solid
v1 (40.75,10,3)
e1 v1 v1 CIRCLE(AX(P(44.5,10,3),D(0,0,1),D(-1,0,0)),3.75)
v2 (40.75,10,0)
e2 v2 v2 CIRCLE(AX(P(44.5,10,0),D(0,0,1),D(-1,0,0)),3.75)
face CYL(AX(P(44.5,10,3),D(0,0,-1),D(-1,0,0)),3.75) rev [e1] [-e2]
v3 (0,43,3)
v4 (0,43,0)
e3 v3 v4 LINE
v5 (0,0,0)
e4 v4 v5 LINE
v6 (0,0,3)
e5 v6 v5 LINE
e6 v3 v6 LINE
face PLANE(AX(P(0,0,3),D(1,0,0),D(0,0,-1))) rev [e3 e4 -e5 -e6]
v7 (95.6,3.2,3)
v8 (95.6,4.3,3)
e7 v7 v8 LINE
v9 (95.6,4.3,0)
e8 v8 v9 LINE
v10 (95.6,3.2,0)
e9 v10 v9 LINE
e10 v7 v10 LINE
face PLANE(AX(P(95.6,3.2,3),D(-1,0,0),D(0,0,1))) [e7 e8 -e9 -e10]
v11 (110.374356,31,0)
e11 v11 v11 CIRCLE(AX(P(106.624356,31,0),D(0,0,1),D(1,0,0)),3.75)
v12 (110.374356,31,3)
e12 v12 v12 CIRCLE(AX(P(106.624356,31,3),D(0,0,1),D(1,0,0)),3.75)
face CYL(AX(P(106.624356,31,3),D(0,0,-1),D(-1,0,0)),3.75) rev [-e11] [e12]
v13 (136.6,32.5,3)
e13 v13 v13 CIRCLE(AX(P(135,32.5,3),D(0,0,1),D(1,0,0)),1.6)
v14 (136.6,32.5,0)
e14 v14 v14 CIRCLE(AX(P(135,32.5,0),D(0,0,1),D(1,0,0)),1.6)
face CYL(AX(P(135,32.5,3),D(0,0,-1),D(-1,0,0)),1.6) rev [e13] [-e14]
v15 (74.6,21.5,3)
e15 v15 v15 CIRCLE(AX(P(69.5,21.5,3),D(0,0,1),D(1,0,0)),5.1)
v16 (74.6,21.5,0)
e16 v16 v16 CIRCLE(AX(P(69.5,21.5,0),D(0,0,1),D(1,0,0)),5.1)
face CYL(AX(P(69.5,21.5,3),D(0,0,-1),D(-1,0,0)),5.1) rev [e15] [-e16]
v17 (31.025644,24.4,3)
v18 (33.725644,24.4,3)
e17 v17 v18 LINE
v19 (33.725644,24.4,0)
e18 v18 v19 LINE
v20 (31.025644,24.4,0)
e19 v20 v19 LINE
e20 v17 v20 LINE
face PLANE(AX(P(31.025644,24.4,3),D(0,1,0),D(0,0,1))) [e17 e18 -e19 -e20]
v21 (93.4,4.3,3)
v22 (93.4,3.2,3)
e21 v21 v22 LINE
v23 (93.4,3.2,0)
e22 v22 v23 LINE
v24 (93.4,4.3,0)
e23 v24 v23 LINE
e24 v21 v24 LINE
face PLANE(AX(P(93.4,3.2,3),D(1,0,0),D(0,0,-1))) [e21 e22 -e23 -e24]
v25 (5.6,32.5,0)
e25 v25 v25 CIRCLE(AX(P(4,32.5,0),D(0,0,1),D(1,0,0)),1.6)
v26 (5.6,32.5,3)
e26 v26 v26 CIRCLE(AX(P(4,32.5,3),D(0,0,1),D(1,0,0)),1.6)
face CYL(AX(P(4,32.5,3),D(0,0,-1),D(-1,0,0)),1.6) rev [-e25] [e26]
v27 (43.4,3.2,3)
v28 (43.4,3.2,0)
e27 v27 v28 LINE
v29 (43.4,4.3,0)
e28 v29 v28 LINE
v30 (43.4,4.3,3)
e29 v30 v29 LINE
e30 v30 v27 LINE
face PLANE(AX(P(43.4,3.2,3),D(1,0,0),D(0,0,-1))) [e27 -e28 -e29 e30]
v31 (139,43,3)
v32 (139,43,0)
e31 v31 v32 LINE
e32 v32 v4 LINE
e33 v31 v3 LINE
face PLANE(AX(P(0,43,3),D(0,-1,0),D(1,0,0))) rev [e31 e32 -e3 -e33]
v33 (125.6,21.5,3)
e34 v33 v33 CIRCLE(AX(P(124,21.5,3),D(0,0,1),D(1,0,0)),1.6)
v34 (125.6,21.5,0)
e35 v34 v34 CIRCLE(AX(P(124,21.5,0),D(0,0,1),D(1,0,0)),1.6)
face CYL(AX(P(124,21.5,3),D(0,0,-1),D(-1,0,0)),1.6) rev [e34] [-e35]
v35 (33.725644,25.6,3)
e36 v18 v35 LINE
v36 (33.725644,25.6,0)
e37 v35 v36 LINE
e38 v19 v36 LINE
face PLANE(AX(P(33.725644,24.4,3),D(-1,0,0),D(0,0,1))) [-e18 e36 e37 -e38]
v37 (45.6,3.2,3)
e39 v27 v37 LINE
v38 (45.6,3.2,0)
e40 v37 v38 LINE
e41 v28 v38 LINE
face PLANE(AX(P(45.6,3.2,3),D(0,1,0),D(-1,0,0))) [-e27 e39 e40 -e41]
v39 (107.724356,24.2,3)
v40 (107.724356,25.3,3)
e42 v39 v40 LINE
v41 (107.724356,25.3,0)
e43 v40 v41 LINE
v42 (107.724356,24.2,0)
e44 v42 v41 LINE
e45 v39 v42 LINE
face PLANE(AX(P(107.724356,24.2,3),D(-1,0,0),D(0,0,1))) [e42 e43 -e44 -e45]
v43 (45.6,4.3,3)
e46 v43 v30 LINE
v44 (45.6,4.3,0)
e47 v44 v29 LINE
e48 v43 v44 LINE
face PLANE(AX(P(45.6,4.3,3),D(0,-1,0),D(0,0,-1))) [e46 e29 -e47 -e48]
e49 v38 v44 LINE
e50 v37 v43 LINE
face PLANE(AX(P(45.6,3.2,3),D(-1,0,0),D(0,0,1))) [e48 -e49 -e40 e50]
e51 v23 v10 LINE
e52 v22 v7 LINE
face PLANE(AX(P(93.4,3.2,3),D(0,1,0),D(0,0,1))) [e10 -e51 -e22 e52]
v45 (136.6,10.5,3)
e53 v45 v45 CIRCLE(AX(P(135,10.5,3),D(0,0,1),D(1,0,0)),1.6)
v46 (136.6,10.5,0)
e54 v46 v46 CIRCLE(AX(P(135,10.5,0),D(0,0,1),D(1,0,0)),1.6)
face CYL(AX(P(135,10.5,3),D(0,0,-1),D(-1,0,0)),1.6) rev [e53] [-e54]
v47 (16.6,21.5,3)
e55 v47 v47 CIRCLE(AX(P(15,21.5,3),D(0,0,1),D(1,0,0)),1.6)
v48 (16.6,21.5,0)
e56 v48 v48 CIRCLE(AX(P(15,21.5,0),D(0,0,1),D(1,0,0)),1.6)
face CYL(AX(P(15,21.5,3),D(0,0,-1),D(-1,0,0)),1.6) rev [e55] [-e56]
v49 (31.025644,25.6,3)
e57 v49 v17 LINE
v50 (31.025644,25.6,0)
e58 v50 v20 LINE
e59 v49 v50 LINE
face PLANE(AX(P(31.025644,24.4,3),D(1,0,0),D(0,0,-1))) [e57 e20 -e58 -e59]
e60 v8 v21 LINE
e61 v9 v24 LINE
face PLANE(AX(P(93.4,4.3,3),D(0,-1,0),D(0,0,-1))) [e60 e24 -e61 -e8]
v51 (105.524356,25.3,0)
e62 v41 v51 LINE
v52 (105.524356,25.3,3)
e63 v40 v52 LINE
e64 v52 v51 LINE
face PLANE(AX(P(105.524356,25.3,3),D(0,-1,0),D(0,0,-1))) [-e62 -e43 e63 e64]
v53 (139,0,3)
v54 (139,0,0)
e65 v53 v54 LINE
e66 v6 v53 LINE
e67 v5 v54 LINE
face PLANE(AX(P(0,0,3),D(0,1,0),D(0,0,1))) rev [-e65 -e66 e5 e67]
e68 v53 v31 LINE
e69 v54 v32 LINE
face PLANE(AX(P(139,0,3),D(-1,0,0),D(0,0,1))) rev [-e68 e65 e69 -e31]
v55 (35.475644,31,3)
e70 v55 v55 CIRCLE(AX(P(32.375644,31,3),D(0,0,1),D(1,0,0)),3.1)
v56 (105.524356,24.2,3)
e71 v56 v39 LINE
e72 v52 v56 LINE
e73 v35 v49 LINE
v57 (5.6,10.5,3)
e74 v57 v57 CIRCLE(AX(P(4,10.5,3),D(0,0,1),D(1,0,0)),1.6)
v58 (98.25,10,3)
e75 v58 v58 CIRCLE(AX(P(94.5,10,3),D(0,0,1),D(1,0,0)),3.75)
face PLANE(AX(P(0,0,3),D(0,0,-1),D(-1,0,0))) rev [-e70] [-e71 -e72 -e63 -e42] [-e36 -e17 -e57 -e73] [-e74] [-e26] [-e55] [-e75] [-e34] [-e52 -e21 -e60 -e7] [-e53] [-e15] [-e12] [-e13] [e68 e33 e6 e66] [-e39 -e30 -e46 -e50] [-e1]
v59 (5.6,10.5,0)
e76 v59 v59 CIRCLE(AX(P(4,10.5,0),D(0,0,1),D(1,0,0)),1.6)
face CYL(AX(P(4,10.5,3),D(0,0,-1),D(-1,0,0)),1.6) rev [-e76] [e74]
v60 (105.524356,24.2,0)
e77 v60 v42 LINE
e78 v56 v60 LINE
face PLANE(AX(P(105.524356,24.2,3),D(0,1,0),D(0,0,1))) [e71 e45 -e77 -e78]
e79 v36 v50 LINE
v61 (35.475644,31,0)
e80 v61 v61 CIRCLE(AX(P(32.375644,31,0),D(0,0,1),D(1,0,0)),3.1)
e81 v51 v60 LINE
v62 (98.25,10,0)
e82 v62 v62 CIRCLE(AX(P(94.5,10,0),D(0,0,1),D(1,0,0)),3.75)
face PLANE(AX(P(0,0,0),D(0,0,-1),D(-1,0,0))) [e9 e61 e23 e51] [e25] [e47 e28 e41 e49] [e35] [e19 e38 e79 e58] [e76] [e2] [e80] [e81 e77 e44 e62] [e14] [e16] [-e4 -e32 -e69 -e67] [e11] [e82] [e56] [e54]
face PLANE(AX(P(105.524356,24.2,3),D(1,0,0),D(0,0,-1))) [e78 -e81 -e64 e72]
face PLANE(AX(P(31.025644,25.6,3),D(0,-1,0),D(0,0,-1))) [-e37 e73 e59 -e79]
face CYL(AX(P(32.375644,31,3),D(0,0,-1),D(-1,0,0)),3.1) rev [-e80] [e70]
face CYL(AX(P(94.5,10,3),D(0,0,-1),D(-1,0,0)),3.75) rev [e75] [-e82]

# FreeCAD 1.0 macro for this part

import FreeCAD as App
import Part
import Sketcher


def add_polygon(sketch, points):
    """Adds a closed chain of lines whose ends are joined by coincident constraints."""
    first, n = sketch.GeometryCount, len(points)
    for a, b in zip(points, points[1:] + points[:1]):
        sketch.addGeometry(Part.LineSegment(App.Vector(*a, 0), App.Vector(*b, 0)), False)
    for i in range(n):
        sketch.addConstraint(Sketcher.Constraint("Coincident", first + i, 2, first + (i + 1) % n, 1))

doc = App.newDocument("Part")
body = doc.addObject("PartDesign::Body", "Body")

sketch1 = doc.addObject("Sketcher::SketchObject", "Sketch")
body.addObject(sketch1)
sketch1.AttachmentSupport = (doc.XY_Plane, [""])
sketch1.MapMode = "FlatFace"
add_polygon(sketch1, [(0, 43), (0, 0), (139, 0), (139, 43)])
sketch1.addGeometry(Part.Circle(App.Vector(4, 10.5, 0), App.Vector(0, 0, 1), 1.6), False)
add_polygon(sketch1, [(45.6, 3.2), (43.4, 3.2), (43.4, 4.3), (45.6, 4.3)])
sketch1.addGeometry(Part.Circle(App.Vector(44.5, 10, 0), App.Vector(0, 0, 1), 3.8), False)
add_polygon(sketch1, [(95.6, 3.2), (93.4, 3.2), (93.4, 4.3), (95.6, 4.3)])
sketch1.addGeometry(Part.Circle(App.Vector(94.5, 10, 0), App.Vector(0, 0, 1), 3.8), False)
sketch1.addGeometry(Part.Circle(App.Vector(135, 10.5, 0), App.Vector(0, 0, 1), 1.6), False)
sketch1.addGeometry(Part.Circle(App.Vector(15, 21.5, 0), App.Vector(0, 0, 1), 1.6), False)
add_polygon(sketch1, [(33.7, 24.4), (31, 24.4), (31, 25.6), (33.7, 25.6)])
sketch1.addGeometry(Part.Circle(App.Vector(4, 32.5, 0), App.Vector(0, 0, 1), 1.6), False)
sketch1.addGeometry(Part.Circle(App.Vector(32.4, 31, 0), App.Vector(0, 0, 1), 3.1), False)
sketch1.addGeometry(Part.Circle(App.Vector(69.5, 21.5, 0), App.Vector(0, 0, 1), 5.1), False)
sketch1.addGeometry(Part.Circle(App.Vector(124, 21.5, 0), App.Vector(0, 0, 1), 1.6), False)
add_polygon(sketch1, [(107.7, 24.2), (105.5, 24.2), (105.5, 25.3), (107.7, 25.3)])
sketch1.addGeometry(Part.Circle(App.Vector(106.6, 31, 0), App.Vector(0, 0, 1), 3.8), False)
sketch1.addGeometry(Part.Circle(App.Vector(135, 32.5, 0), App.Vector(0, 0, 1), 1.6), False)
sketch1.addConstraint([
    Sketcher.Constraint("Vertical", 0),
    Sketcher.Constraint("Horizontal", 1),
    Sketcher.Constraint("Vertical", 2),
    Sketcher.Constraint("Horizontal", 3),
    Sketcher.Constraint("Horizontal", 5),
    Sketcher.Constraint("Vertical", 6),
    Sketcher.Constraint("Horizontal", 7),
    Sketcher.Constraint("Vertical", 8),
    Sketcher.Constraint("Horizontal", 10),
    Sketcher.Constraint("Vertical", 11),
    Sketcher.Constraint("Horizontal", 12),
    Sketcher.Constraint("Vertical", 13),
    Sketcher.Constraint("Horizontal", 17),
    Sketcher.Constraint("Vertical", 18),
    Sketcher.Constraint("Horizontal", 19),
    Sketcher.Constraint("Vertical", 20),
    Sketcher.Constraint("Horizontal", 25),
    Sketcher.Constraint("Vertical", 26),
    Sketcher.Constraint("Horizontal", 27),
    Sketcher.Constraint("Vertical", 28),
    Sketcher.Constraint("Coincident", 0, 2, -1, 1),
    Sketcher.Constraint("Equal", 9, 14),
    Sketcher.Constraint("Equal", 4, 15),
    Sketcher.Constraint("Equal", 15, 16),
    Sketcher.Constraint("Equal", 16, 21),
    Sketcher.Constraint("Equal", 21, 24),
    Sketcher.Constraint("Equal", 14, 29),
    Sketcher.Constraint("Equal", 24, 30),
    Sketcher.Constraint("Horizontal", 9, 3, 14, 3),
    Sketcher.Constraint("Horizontal", 4, 3, 15, 3),
    Sketcher.Constraint("Horizontal", 16, 3, 23, 3),
    Sketcher.Constraint("Horizontal", 23, 3, 24, 3),
    Sketcher.Constraint("Horizontal", 22, 3, 29, 3),
    Sketcher.Constraint("Horizontal", 21, 3, 30, 3),
    Sketcher.Constraint("Horizontal", 8, 2, 10, 2),
    Sketcher.Constraint("Horizontal", 7, 2, 11, 2),
    Sketcher.Constraint("Vertical", 4, 3, 21, 3),
    Sketcher.Constraint("Vertical", 15, 3, 30, 3),
    Sketcher.Constraint("Equal", 7, 10),
    Sketcher.Constraint("Equal", 12, 25),
    Sketcher.Constraint("Equal", 13, 26),
    Sketcher.Constraint("Diameter", 4, 3.2),
    Sketcher.Constraint("Diameter", 9, 7.5),
    Sketcher.Constraint("Diameter", 22, 6.2),
    Sketcher.Constraint("Diameter", 23, 10.2),
    Sketcher.Constraint("DistanceX", 1, 1, 1, 2, 139.0),
    Sketcher.Constraint("DistanceY", 0, 2, 0, 1, 43.0),
    Sketcher.Constraint("DistanceX", 5, 2, 5, 1, 2.2),
    Sketcher.Constraint("DistanceX", 17, 2, 17, 1, 2.7),
    Sketcher.Constraint("DistanceY", 6, 1, 6, 2, 1.1),
    Sketcher.Constraint("DistanceY", 18, 1, 18, 2, 1.2),
    Sketcher.Constraint("DistanceX", -1, 1, 4, 3, 4.0),
    Sketcher.Constraint("DistanceY", -1, 1, 9, 3, 10.0),
    Sketcher.Constraint("DistanceX", -1, 1, 15, 3, 135.0),
    Sketcher.Constraint("DistanceX", -1, 1, 16, 3, 15.0),
    Sketcher.Constraint("DistanceY", -1, 1, 22, 3, 31.0),
    Sketcher.Constraint("DistanceX", -1, 1, 24, 3, 124.0),
    Sketcher.Constraint("DistanceX", 9, 3, 14, 3, 50.0),
    Sketcher.Constraint("DistanceY", 4, 3, 16, 3, 11.0),
    Sketcher.Constraint("DistanceY", 16, 3, 21, 3, 11.0),
    Sketcher.Constraint("DistanceX", 9, 3, 23, 3, 25.0),
    Sketcher.Constraint("DistanceY", 13, 2, 25, 2, 21.0),
    Sketcher.Constraint("DistanceY", -1, 1, 4, 3, 10.5),
    Sketcher.Constraint("DistanceX", -1, 1, 9, 3, 44.5),
    Sketcher.Constraint("DistanceX", -1, 1, 5, 2, 43.4),
    Sketcher.Constraint("DistanceY", -1, 1, 5, 2, 3.2),
    Sketcher.Constraint("DistanceX", -1, 1, 10, 2, 93.4),
    Sketcher.Constraint("DistanceY", -1, 1, 17, 2, 24.4),
    Sketcher.Constraint("DistanceX", 25, 2, 29, 3, 1.1),
    Sketcher.Constraint("DistanceX", 17, 2, 22, 3, 1.35),
    Sketcher.Constraint("DistanceX", -1, 1, 22, 3, 32.375644),
    Sketcher.Constraint("DistanceX", -1, 1, 29, 3, 106.624356),
])
pad1 = doc.addObject("PartDesign::Pad", "Pad")
body.addObject(pad1)
pad1.Profile = sketch1
pad1.Length = 3

doc.recompute()
